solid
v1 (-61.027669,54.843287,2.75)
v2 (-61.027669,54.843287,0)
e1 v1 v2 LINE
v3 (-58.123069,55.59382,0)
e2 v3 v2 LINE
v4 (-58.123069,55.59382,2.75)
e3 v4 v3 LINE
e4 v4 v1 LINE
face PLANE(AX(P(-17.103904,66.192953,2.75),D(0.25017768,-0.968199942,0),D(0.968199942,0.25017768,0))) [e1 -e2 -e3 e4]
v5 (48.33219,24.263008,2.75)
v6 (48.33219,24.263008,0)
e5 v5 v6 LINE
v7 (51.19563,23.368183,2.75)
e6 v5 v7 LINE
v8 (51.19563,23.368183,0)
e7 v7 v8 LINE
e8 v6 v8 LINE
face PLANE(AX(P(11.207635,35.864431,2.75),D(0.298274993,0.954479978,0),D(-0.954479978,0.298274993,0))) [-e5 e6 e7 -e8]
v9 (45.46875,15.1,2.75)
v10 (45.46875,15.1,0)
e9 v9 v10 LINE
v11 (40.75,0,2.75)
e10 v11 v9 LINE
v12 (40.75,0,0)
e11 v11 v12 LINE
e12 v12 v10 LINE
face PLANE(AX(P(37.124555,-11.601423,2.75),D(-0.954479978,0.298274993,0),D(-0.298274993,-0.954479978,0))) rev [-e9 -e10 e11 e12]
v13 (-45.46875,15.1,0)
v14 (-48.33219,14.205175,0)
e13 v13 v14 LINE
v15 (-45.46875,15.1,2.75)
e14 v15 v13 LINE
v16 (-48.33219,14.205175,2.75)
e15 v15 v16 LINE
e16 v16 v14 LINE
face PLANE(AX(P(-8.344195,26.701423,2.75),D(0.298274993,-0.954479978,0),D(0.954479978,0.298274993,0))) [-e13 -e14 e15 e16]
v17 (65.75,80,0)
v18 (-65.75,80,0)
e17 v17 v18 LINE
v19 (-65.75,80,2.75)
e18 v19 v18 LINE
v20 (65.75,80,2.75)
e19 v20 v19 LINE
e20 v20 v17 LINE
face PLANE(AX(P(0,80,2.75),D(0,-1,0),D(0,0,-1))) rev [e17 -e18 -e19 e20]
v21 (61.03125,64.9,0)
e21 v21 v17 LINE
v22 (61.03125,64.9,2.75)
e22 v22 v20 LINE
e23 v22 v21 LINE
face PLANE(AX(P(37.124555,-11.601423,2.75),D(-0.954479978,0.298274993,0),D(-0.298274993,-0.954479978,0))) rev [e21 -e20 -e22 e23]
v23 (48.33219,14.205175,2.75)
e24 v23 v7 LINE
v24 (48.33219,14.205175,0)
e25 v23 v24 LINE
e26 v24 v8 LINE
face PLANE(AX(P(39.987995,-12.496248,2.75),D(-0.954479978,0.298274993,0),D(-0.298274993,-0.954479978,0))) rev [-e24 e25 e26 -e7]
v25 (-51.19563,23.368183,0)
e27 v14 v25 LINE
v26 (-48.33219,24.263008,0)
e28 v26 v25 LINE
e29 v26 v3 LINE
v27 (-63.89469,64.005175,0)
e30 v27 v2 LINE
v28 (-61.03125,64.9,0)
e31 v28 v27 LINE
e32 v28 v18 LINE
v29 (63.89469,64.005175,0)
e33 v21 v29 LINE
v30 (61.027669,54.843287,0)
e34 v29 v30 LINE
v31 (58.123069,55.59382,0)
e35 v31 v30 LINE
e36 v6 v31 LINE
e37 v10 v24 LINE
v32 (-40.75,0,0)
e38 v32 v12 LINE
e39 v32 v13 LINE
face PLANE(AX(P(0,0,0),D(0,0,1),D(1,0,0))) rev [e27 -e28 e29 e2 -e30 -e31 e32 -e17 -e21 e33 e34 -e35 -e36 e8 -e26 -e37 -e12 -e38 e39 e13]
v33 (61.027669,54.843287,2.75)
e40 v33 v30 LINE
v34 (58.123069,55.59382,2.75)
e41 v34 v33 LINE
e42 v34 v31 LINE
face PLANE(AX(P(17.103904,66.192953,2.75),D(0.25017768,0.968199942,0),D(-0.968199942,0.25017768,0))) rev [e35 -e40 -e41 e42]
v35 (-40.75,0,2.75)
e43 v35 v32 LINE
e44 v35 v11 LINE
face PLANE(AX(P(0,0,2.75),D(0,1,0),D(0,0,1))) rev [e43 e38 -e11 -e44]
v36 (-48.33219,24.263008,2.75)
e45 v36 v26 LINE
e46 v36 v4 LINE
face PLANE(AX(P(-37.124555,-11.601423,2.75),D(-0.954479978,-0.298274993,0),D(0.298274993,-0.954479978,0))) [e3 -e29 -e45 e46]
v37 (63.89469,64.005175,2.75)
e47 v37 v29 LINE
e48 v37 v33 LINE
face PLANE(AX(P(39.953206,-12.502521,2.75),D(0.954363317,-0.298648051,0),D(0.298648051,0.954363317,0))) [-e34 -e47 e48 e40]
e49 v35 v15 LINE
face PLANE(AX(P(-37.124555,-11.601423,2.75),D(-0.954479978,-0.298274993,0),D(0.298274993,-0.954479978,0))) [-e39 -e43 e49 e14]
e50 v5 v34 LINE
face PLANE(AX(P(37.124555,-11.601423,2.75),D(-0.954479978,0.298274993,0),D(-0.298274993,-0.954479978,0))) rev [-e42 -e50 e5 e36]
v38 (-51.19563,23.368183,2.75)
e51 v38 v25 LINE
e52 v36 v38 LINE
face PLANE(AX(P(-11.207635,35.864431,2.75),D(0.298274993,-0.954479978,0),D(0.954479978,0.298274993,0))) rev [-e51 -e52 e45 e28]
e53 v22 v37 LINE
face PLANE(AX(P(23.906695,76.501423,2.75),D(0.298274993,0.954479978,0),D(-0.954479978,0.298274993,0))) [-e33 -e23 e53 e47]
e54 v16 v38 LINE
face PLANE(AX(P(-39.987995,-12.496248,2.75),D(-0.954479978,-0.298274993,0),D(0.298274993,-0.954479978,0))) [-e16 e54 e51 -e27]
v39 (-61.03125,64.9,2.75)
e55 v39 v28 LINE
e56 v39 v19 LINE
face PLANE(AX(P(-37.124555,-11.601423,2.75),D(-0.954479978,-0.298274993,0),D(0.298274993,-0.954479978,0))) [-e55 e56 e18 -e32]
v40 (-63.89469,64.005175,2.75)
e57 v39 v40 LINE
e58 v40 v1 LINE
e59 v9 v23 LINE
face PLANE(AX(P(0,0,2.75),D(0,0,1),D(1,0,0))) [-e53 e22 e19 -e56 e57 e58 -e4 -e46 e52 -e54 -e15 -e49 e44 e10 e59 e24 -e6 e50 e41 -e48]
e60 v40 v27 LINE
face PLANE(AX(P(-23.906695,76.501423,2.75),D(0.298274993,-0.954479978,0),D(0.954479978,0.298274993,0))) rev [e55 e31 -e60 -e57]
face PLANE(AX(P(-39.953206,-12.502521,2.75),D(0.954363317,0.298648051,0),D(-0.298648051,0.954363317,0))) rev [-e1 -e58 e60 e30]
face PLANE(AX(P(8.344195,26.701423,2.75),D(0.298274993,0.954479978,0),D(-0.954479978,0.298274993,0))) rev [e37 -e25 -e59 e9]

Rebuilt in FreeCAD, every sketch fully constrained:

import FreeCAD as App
import Part
import Sketcher


def add_polygon(sketch, points):
    """Adds a closed chain of lines whose ends are joined by coincident constraints."""
    first, n = sketch.GeometryCount, len(points)
    for a, b in zip(points, points[1:] + points[:1]):
        sketch.addGeometry(Part.LineSegment(App.Vector(*a, 0), App.Vector(*b, 0)), False)
    for i in range(n):
        sketch.addConstraint(Sketcher.Constraint("Coincident", first + i, 2, first + (i + 1) % n, 1))

doc = App.newDocument("Part")
params = doc.addObject("Spreadsheet::Sheet", "Params")
for row, (alias, value) in enumerate([
    ("sketch1_length", "3 mm"),
    ("sketch1_width", "81.5 mm"),
    ("sketch1_width2", "131.5 mm"),
    ("sketch1_length2", "9.6 mm"),
    ("pad1_length", "2.75 mm"),
], start=1):
    params.set(f"A{row}", alias)
    params.set(f"B{row}", "=" + value)
    params.setAlias(f"B{row}", alias)

body = doc.addObject("PartDesign::Body", "Body")

sketch1 = body.newObject("Sketcher::SketchObject", "Sketch")
sketch1.AttachmentSupport = (doc.getObject("XY_Plane"), [""])
sketch1.MapMode = "FlatFace"
add_polygon(sketch1, [(-40.8, 0), (40.8, 0), (45.5, 15.1), (48.3, 14.2), (51.2, 23.4), (48.3, 24.3), (58.1, 55.6), (61, 54.8), (63.9, 64), (61, 64.9), (65.8, 80), (-65.8, 80), (-61, 64.9), (-63.9, 64), (-61, 54.8), (-58.1, 55.6), (-48.3, 24.3), (-51.2, 23.4), (-48.3, 14.2), (-45.5, 15.1)])
sketch1.addConstraint(Sketcher.Constraint("Horizontal", 0))
sketch1.addConstraint(Sketcher.Constraint("Horizontal", 10))
sketch1.addConstraint(Sketcher.Constraint("Symmetric", 0, 2, 19, 2, -1, 1))
sketch1.addConstraint(Sketcher.Constraint("Symmetric", 8, 2, 11, 2, -2))
sketch1.addConstraint(Sketcher.Constraint("Symmetric", 7, 2, 12, 2, -2))
sketch1.addConstraint(Sketcher.Constraint("Symmetric", 6, 2, 13, 2, -2))
sketch1.addConstraint(Sketcher.Constraint("Symmetric", 5, 2, 14, 2, -2))
sketch1.addConstraint(Sketcher.Constraint("Symmetric", 4, 2, 15, 2, -2))
sketch1.addConstraint(Sketcher.Constraint("Symmetric", 3, 2, 16, 2, -2))
sketch1.addConstraint(Sketcher.Constraint("Symmetric", 2, 2, 17, 2, -2))
sketch1.addConstraint(Sketcher.Constraint("Symmetric", 1, 2, 18, 2, -2))
sketch1.addConstraint(Sketcher.Constraint("Perpendicular", 1, 2))
sketch1.addConstraint(Sketcher.Constraint("Perpendicular", 2, 3))
sketch1.addConstraint(Sketcher.Constraint("Perpendicular", 3, 4))
sketch1.addConstraint(Sketcher.Constraint("Perpendicular", 4, 5))
sketch1.addConstraint(Sketcher.Constraint("Perpendicular", 5, 8))
sketch1.addConstraint(Sketcher.Constraint("Perpendicular", 8, 9))
sketch1.addConstraint(Sketcher.Constraint("Perpendicular", 11, 12))
sketch1.addConstraint(Sketcher.Constraint("Vertical", 2, 2, 4, 2))
sketch1.addConstraint(Sketcher.Constraint("Equal", 2, 4))
sketch1.addConstraint(Sketcher.Constraint("Equal", 4, 6))
sketch1.addConstraint(Sketcher.Constraint("Equal", 3, 7))
sketch1.addConstraint(Sketcher.Constraint("Equal", 6, 8))
sketch1.addConstraint(Sketcher.Constraint("Equal", 1, 9))
sketch1.addConstraint(Sketcher.Constraint("Distance", 2, 3.0))
sketch1.addConstraint(Sketcher.Constraint("DistanceX", 0, 1, 0, 2, 81.5))
sketch1.addConstraint(Sketcher.Constraint("DistanceX", 10, 2, 10, 1, 131.5))
sketch1.addConstraint(Sketcher.Constraint("DistanceY", -1, 1, 9, 2, 80.0))
sketch1.addConstraint(Sketcher.Constraint("Distance", 3, 9.6))
sketch1.addConstraint(Sketcher.Constraint("DistanceY", -1, 1, 1, 2, 15.1))
sketch1.addConstraint(Sketcher.Constraint("DistanceX", 5, 2, 6, 2, 2.9046))
sketch1.setExpression("Constraints[44]", "Params.sketch1_length")
sketch1.setExpression("Constraints[45]", "Params.sketch1_width")
sketch1.setExpression("Constraints[46]", "Params.sketch1_width2")
sketch1.setExpression("Constraints[48]", "Params.sketch1_length2")
pad1 = body.newObject("PartDesign::Pad", "Pad")
pad1.Profile = sketch1
pad1.setExpression("Length", "Params.pad1_length")

doc.recompute()
